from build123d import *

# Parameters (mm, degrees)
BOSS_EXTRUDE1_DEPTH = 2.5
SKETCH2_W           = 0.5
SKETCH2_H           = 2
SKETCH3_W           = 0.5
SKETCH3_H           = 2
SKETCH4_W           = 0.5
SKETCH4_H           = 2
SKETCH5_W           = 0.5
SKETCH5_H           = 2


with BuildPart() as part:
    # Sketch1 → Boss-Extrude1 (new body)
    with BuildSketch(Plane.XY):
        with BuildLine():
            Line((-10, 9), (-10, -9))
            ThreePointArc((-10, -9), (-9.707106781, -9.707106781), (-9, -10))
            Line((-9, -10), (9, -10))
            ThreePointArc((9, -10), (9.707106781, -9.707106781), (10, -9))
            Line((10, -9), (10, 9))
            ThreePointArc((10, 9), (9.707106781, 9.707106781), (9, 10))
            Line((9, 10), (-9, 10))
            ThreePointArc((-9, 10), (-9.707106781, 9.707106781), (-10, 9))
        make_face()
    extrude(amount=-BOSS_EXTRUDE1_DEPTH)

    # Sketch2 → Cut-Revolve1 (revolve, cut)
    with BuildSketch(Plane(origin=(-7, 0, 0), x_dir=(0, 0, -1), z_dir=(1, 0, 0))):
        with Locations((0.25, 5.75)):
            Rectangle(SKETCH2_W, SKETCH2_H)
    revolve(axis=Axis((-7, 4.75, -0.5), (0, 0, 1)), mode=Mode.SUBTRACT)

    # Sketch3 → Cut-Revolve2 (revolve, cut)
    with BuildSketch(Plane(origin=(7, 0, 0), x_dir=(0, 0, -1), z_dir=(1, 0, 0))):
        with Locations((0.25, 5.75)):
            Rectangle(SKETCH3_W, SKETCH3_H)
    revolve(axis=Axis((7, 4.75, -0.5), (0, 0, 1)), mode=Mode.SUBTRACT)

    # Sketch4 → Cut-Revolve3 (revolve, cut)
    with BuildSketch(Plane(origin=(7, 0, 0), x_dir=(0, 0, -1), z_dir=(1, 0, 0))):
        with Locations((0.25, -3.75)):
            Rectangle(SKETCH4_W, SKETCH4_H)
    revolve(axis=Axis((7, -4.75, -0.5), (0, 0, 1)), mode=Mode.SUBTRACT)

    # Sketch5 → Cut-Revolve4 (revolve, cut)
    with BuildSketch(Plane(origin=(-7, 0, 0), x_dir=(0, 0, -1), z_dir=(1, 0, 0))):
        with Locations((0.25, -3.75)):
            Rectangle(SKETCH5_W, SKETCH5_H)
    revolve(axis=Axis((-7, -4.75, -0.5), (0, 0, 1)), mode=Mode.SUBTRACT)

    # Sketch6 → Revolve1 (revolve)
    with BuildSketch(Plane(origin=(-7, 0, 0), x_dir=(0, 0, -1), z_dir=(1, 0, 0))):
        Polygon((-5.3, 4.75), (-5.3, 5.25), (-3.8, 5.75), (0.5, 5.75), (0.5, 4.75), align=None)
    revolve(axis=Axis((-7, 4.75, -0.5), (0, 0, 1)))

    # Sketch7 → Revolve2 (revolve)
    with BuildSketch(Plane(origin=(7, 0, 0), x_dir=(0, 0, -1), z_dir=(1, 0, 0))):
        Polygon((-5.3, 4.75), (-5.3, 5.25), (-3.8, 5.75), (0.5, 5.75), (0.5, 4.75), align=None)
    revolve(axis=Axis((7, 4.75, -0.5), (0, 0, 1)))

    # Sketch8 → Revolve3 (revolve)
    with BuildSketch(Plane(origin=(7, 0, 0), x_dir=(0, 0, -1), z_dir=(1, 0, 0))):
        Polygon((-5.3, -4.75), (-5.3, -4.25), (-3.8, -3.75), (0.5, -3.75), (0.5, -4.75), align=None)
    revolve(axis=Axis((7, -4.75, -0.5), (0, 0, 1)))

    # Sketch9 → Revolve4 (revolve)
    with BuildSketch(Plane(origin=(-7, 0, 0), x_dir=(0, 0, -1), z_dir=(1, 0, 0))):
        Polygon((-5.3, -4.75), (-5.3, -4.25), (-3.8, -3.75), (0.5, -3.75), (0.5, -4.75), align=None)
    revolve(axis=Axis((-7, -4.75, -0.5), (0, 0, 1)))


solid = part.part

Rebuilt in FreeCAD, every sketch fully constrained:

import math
import FreeCAD as App
import Part
import Sketcher
Q = App.Units.Quantity


def add_polygon(sketch, points):
    """Adds a closed chain of lines whose ends are joined by coincident constraints."""
    first, n = sketch.GeometryCount, len(points)
    for a, b in zip(points, points[1:] + points[:1]):
        sketch.addGeometry(Part.LineSegment(App.Vector(*a, 0), App.Vector(*b, 0)), False)
    for i in range(n):
        sketch.addConstraint(Sketcher.Constraint("Coincident", first + i, 2, first + (i + 1) % n, 1))

doc = App.newDocument("Part")
params = doc.addObject("Spreadsheet::Sheet", "Params")
for row, (alias, value) in enumerate([
    ("sketch1_radius", "1 mm"),
    ("sketch1_width", "18 mm"),
    ("pad1_length", "2.5 mm"),
    ("sketch2_width", "2 mm"),
    ("sketch2_height", "0.5 mm"),
    ("groove_angle", "360 deg"),
    ("sketch3_width", "2 mm"),
    ("sketch3_height", "0.5 mm"),
    ("groove2_angle", "360 deg"),
    ("sketch4_width", "2 mm"),
    ("sketch4_height", "0.5 mm"),
    ("groove3_angle", "360 deg"),
    ("sketch5_width", "2 mm"),
    ("sketch5_height", "0.5 mm"),
    ("groove4_angle", "360 deg"),
    ("sketch6_width", "1 mm"),
    ("sketch6_width2", "0.5 mm"),
    ("sketch6_height", "5.8 mm"),
    ("sketch6_height2", "4.3 mm"),
    ("revolution_angle", "360 deg"),
    ("sketch7_width", "1 mm"),
    ("sketch7_width2", "0.5 mm"),
    ("sketch7_height", "5.8 mm"),
    ("sketch7_height2", "4.3 mm"),
    ("revolution2_angle", "360 deg"),
    ("sketch8_width", "1 mm"),
    ("sketch8_width2", "0.5 mm"),
    ("sketch8_height", "5.8 mm"),
    ("sketch8_height2", "4.3 mm"),
    ("revolution3_angle", "360 deg"),
    ("sketch9_width", "1 mm"),
    ("sketch9_width2", "0.5 mm"),
    ("sketch9_height", "5.8 mm"),
    ("sketch9_height2", "4.3 mm"),
    ("revolution4_angle", "360 deg"),
], start=1):
    params.set(f"A{row}", alias)
    params.set(f"B{row}", "=" + value)
    params.setAlias(f"B{row}", alias)

body = doc.addObject("PartDesign::Body", "Body")

sketch1 = doc.addObject("Sketcher::SketchObject", "Sketch")
body.addObject(sketch1)
sketch1.AttachmentSupport = (doc.XY_Plane, [""])
sketch1.MapMode = "FlatFace"
sketch1.addGeometry([
    Part.LineSegment(App.Vector(-10, 9, 0), App.Vector(-10, -9, 0)),
    Part.ArcOfCircle(Part.Circle(App.Vector(-9, -9, 0), App.Vector(0, 0, 1), 1), math.radians(-180), math.radians(-90)),
    Part.LineSegment(App.Vector(-9, -10, 0), App.Vector(9, -10, 0)),
    Part.ArcOfCircle(Part.Circle(App.Vector(9, -9, 0), App.Vector(0, 0, 1), 1), math.radians(-90), math.radians(0)),
    Part.LineSegment(App.Vector(10, -9, 0), App.Vector(10, 9, 0)),
    Part.ArcOfCircle(Part.Circle(App.Vector(9, 9, 0), App.Vector(0, 0, 1), 1), math.radians(0), math.radians(90)),
    Part.LineSegment(App.Vector(9, 10, 0), App.Vector(-9, 10, 0)),
    Part.ArcOfCircle(Part.Circle(App.Vector(-9, 9, 0), App.Vector(0, 0, 1), 1), math.radians(90), math.radians(180)),
], False)
sketch1.addConstraint([
    Sketcher.Constraint("Tangent", 0, 2, 1, 1),
    Sketcher.Constraint("Tangent", 1, 2, 2, 1),
    Sketcher.Constraint("Tangent", 2, 2, 3, 1),
    Sketcher.Constraint("Tangent", 3, 2, 4, 1),
    Sketcher.Constraint("Tangent", 4, 2, 5, 1),
    Sketcher.Constraint("Tangent", 5, 2, 6, 1),
    Sketcher.Constraint("Tangent", 6, 2, 7, 1),
    Sketcher.Constraint("Tangent", 7, 2, 0, 1),
    Sketcher.Constraint("Vertical", 0),
    Sketcher.Constraint("Horizontal", 2),
    Sketcher.Constraint("Vertical", 4),
    Sketcher.Constraint("Horizontal", 6),
    Sketcher.Constraint("Equal", 1, 3),
    Sketcher.Constraint("Equal", 3, 5),
    Sketcher.Constraint("Equal", 5, 7),
    Sketcher.Constraint("Symmetric", 1, 3, 5, 3, -1, 1),
    Sketcher.Constraint("Equal", 6, 0),
    Sketcher.Constraint("Radius", 1, Q("1 mm")),
    Sketcher.Constraint("DistanceX", 2, 1, 2, 2, Q("18 mm")),
])
sketch1.setExpression("Constraints[17]", "Params.sketch1_radius")
sketch1.setExpression("Constraints[18]", "Params.sketch1_width")
pad1 = doc.addObject("PartDesign::Pad", "Pad")
body.addObject(pad1)
pad1.Profile = sketch1
pad1.setExpression("Length", "Params.pad1_length")
pad1.Reversed = True

sketch2 = doc.addObject("Sketcher::SketchObject", "Sketch001")
body.addObject(sketch2)
sketch2.AttachmentSupport = (doc.YZ_Plane, [""])
sketch2.MapMode = "FlatFace"
sketch2.AttachmentOffset = App.Placement(App.Vector(0, 0, -7), App.Rotation())
add_polygon(sketch2, [(6.8, 0), (4.8, 0), (4.8, -0.5), (6.8, -0.5)])
sketch2.addGeometry(Part.LineSegment(App.Vector(4.8, -0.5, 0), App.Vector(4.8, 0, 0)), True)
sketch2.addConstraint([
    Sketcher.Constraint("Horizontal", 0),
    Sketcher.Constraint("Vertical", 1),
    Sketcher.Constraint("Horizontal", 2),
    Sketcher.Constraint("Vertical", 3),
    Sketcher.Constraint("Vertical", 4),
    Sketcher.Constraint("Coincident", 4, 1, 1, 2),
    Sketcher.Constraint("PointOnObject", 0, 2, -1),
    Sketcher.Constraint("PointOnObject", 4, 2, -1),
    Sketcher.Constraint("DistanceX", 0, 2, 0, 1, Q("2 mm")),
    Sketcher.Constraint("DistanceY", 1, 2, 1, 1, Q("0.5 mm")),
    Sketcher.Constraint("DistanceX", -1, 1, 0, 2, Q("4.75 mm")),
])
sketch2.setExpression("Constraints[12]", "Params.sketch2_width")
sketch2.setExpression("Constraints[13]", "Params.sketch2_height")
groove = doc.addObject("PartDesign::Groove", "Groove")
body.addObject(groove)
groove.Profile = sketch2
groove.ReferenceAxis = (sketch2, ["Axis0"])
groove.setExpression("Angle", "Params.groove_angle")

sketch3 = doc.addObject("Sketcher::SketchObject", "Sketch002")
body.addObject(sketch3)
sketch3.AttachmentSupport = (doc.YZ_Plane, [""])
sketch3.MapMode = "FlatFace"
sketch3.AttachmentOffset = App.Placement(App.Vector(0, 0, 7), App.Rotation())
add_polygon(sketch3, [(6.8, 0), (4.8, 0), (4.8, -0.5), (6.8, -0.5)])
sketch3.addGeometry(Part.LineSegment(App.Vector(4.8, -0.5, 0), App.Vector(4.8, 0, 0)), True)
sketch3.addConstraint([
    Sketcher.Constraint("Horizontal", 0),
    Sketcher.Constraint("Vertical", 1),
    Sketcher.Constraint("Horizontal", 2),
    Sketcher.Constraint("Vertical", 3),
    Sketcher.Constraint("Vertical", 4),
    Sketcher.Constraint("Coincident", 4, 1, 1, 2),
    Sketcher.Constraint("PointOnObject", 0, 2, -1),
    Sketcher.Constraint("PointOnObject", 4, 2, -1),
    Sketcher.Constraint("DistanceX", 0, 2, 0, 1, Q("2 mm")),
    Sketcher.Constraint("DistanceY", 1, 2, 1, 1, Q("0.5 mm")),
    Sketcher.Constraint("DistanceX", -1, 1, 0, 2, Q("4.75 mm")),
])
sketch3.setExpression("Constraints[12]", "Params.sketch3_width")
sketch3.setExpression("Constraints[13]", "Params.sketch3_height")
groove2 = doc.addObject("PartDesign::Groove", "Groove001")
body.addObject(groove2)
groove2.Profile = sketch3
groove2.ReferenceAxis = (sketch3, ["Axis0"])
groove2.setExpression("Angle", "Params.groove2_angle")

sketch4 = doc.addObject("Sketcher::SketchObject", "Sketch003")
body.addObject(sketch4)
sketch4.AttachmentSupport = (doc.YZ_Plane, [""])
sketch4.MapMode = "FlatFace"
sketch4.AttachmentOffset = App.Placement(App.Vector(0, 0, 7), App.Rotation())
add_polygon(sketch4, [(-2.8, 0), (-4.8, 0), (-4.8, -0.5), (-2.8, -0.5)])
sketch4.addGeometry(Part.LineSegment(App.Vector(-4.8, -0.5, 0), App.Vector(-4.8, 0, 0)), True)
sketch4.addConstraint([
    Sketcher.Constraint("Horizontal", 0),
    Sketcher.Constraint("Vertical", 1),
    Sketcher.Constraint("Horizontal", 2),
    Sketcher.Constraint("Vertical", 3),
    Sketcher.Constraint("Vertical", 4),
    Sketcher.Constraint("Coincident", 4, 1, 1, 2),
    Sketcher.Constraint("PointOnObject", 0, 2, -1),
    Sketcher.Constraint("PointOnObject", 4, 2, -1),
    Sketcher.Constraint("DistanceX", 0, 2, 0, 1, Q("2 mm")),
    Sketcher.Constraint("DistanceY", 1, 2, 1, 1, Q("0.5 mm")),
    Sketcher.Constraint("DistanceX", 0, 2, -1, 1, Q("4.75 mm")),
])
sketch4.setExpression("Constraints[12]", "Params.sketch4_width")
sketch4.setExpression("Constraints[13]", "Params.sketch4_height")
groove3 = doc.addObject("PartDesign::Groove", "Groove002")
body.addObject(groove3)
groove3.Profile = sketch4
groove3.ReferenceAxis = (sketch4, ["Axis0"])
groove3.setExpression("Angle", "Params.groove3_angle")

sketch5 = doc.addObject("Sketcher::SketchObject", "Sketch004")
body.addObject(sketch5)
sketch5.AttachmentSupport = (doc.YZ_Plane, [""])
sketch5.MapMode = "FlatFace"
sketch5.AttachmentOffset = App.Placement(App.Vector(0, 0, -7), App.Rotation())
add_polygon(sketch5, [(-2.8, 0), (-4.8, 0), (-4.8, -0.5), (-2.8, -0.5)])
sketch5.addGeometry(Part.LineSegment(App.Vector(-4.8, -0.5, 0), App.Vector(-4.8, 0, 0)), True)
sketch5.addConstraint([
    Sketcher.Constraint("Horizontal", 0),
    Sketcher.Constraint("Vertical", 1),
    Sketcher.Constraint("Horizontal", 2),
    Sketcher.Constraint("Vertical", 3),
    Sketcher.Constraint("Vertical", 4),
    Sketcher.Constraint("Coincident", 4, 1, 1, 2),
    Sketcher.Constraint("PointOnObject", 0, 2, -1),
    Sketcher.Constraint("PointOnObject", 4, 2, -1),
    Sketcher.Constraint("DistanceX", 0, 2, 0, 1, Q("2 mm")),
    Sketcher.Constraint("DistanceY", 1, 2, 1, 1, Q("0.5 mm")),
    Sketcher.Constraint("DistanceX", 0, 2, -1, 1, Q("4.75 mm")),
])
sketch5.setExpression("Constraints[12]", "Params.sketch5_width")
sketch5.setExpression("Constraints[13]", "Params.sketch5_height")
groove4 = doc.addObject("PartDesign::Groove", "Groove003")
body.addObject(groove4)
groove4.Profile = sketch5
groove4.ReferenceAxis = (sketch5, ["Axis0"])
groove4.setExpression("Angle", "Params.groove4_angle")

sketch6 = doc.addObject("Sketcher::SketchObject", "Sketch005")
body.addObject(sketch6)
sketch6.AttachmentSupport = (doc.YZ_Plane, [""])
sketch6.MapMode = "FlatFace"
sketch6.AttachmentOffset = App.Placement(App.Vector(0, 0, -7), App.Rotation())
add_polygon(sketch6, [(5.2, 5.3), (4.8, 5.3), (4.8, -0.5), (5.8, -0.5), (5.8, 3.8)])
sketch6.addGeometry(Part.LineSegment(App.Vector(4.8, -0.5, 0), App.Vector(4.8, 5.3, 0)), True)
sketch6.addConstraint([
    Sketcher.Constraint("Horizontal", 0),
    Sketcher.Constraint("Vertical", 1),
    Sketcher.Constraint("Horizontal", 2),
    Sketcher.Constraint("Vertical", 3),
    Sketcher.Constraint("Vertical", 5),
    Sketcher.Constraint("Coincident", 5, 1, 1, 2),
    Sketcher.Constraint("Horizontal", 4, 2, 5, 2),
    Sketcher.Constraint("DistanceX", 2, 1, 2, 2, Q("1 mm")),
    Sketcher.Constraint("DistanceX", 0, 2, 0, 1, Q("0.5 mm")),
    Sketcher.Constraint("DistanceY", 1, 2, 1, 1, Q("5.8 mm")),
    Sketcher.Constraint("DistanceY", 3, 1, 3, 2, Q("4.3 mm")),
    Sketcher.Constraint("DistanceY", -1, 1, 0, 2, Q("5.3 mm")),
    Sketcher.Constraint("DistanceX", -1, 1, 0, 2, Q("4.75 mm")),
])
sketch6.setExpression("Constraints[12]", "Params.sketch6_width")
sketch6.setExpression("Constraints[13]", "Params.sketch6_width2")
sketch6.setExpression("Constraints[14]", "Params.sketch6_height")
sketch6.setExpression("Constraints[15]", "Params.sketch6_height2")
revolution = doc.addObject("PartDesign::Revolution", "Revolution")
body.addObject(revolution)
revolution.Profile = sketch6
revolution.ReferenceAxis = (sketch6, ["Axis0"])
revolution.setExpression("Angle", "Params.revolution_angle")

sketch7 = doc.addObject("Sketcher::SketchObject", "Sketch006")
body.addObject(sketch7)
sketch7.AttachmentSupport = (doc.YZ_Plane, [""])
sketch7.MapMode = "FlatFace"
sketch7.AttachmentOffset = App.Placement(App.Vector(0, 0, 7), App.Rotation())
add_polygon(sketch7, [(5.2, 5.3), (4.8, 5.3), (4.8, -0.5), (5.8, -0.5), (5.8, 3.8)])
sketch7.addGeometry(Part.LineSegment(App.Vector(4.8, -0.5, 0), App.Vector(4.8, 5.3, 0)), True)
sketch7.addConstraint([
    Sketcher.Constraint("Horizontal", 0),
    Sketcher.Constraint("Vertical", 1),
    Sketcher.Constraint("Horizontal", 2),
    Sketcher.Constraint("Vertical", 3),
    Sketcher.Constraint("Vertical", 5),
    Sketcher.Constraint("Coincident", 5, 1, 1, 2),
    Sketcher.Constraint("Horizontal", 4, 2, 5, 2),
    Sketcher.Constraint("DistanceX", 2, 1, 2, 2, Q("1 mm")),
    Sketcher.Constraint("DistanceX", 0, 2, 0, 1, Q("0.5 mm")),
    Sketcher.Constraint("DistanceY", 1, 2, 1, 1, Q("5.8 mm")),
    Sketcher.Constraint("DistanceY", 3, 1, 3, 2, Q("4.3 mm")),
    Sketcher.Constraint("DistanceY", -1, 1, 0, 2, Q("5.3 mm")),
    Sketcher.Constraint("DistanceX", -1, 1, 0, 2, Q("4.75 mm")),
])
sketch7.setExpression("Constraints[12]", "Params.sketch7_width")
sketch7.setExpression("Constraints[13]", "Params.sketch7_width2")
sketch7.setExpression("Constraints[14]", "Params.sketch7_height")
sketch7.setExpression("Constraints[15]", "Params.sketch7_height2")
revolution2 = doc.addObject("PartDesign::Revolution", "Revolution001")
body.addObject(revolution2)
revolution2.Profile = sketch7
revolution2.ReferenceAxis = (sketch7, ["Axis0"])
revolution2.setExpression("Angle", "Params.revolution2_angle")

sketch8 = doc.addObject("Sketcher::SketchObject", "Sketch007")
body.addObject(sketch8)
sketch8.AttachmentSupport = (doc.YZ_Plane, [""])
sketch8.MapMode = "FlatFace"
sketch8.AttachmentOffset = App.Placement(App.Vector(0, 0, 7), App.Rotation())
add_polygon(sketch8, [(-4.2, 5.3), (-4.8, 5.3), (-4.8, -0.5), (-3.8, -0.5), (-3.8, 3.8)])
sketch8.addGeometry(Part.LineSegment(App.Vector(-4.8, -0.5, 0), App.Vector(-4.8, 5.3, 0)), True)
sketch8.addConstraint([
    Sketcher.Constraint("Horizontal", 0),
    Sketcher.Constraint("Vertical", 1),
    Sketcher.Constraint("Horizontal", 2),
    Sketcher.Constraint("Vertical", 3),
    Sketcher.Constraint("Vertical", 5),
    Sketcher.Constraint("Coincident", 5, 1, 1, 2),
    Sketcher.Constraint("Horizontal", 4, 2, 5, 2),
    Sketcher.Constraint("DistanceX", 2, 1, 2, 2, Q("1 mm")),
    Sketcher.Constraint("DistanceX", 0, 2, 0, 1, Q("0.5 mm")),
    Sketcher.Constraint("DistanceY", 1, 2, 1, 1, Q("5.8 mm")),
    Sketcher.Constraint("DistanceY", 3, 1, 3, 2, Q("4.3 mm")),
    Sketcher.Constraint("DistanceY", -1, 1, 0, 2, Q("5.3 mm")),
    Sketcher.Constraint("DistanceX", 0, 2, -1, 1, Q("4.75 mm")),
])
sketch8.setExpression("Constraints[12]", "Params.sketch8_width")
sketch8.setExpression("Constraints[13]", "Params.sketch8_width2")
sketch8.setExpression("Constraints[14]", "Params.sketch8_height")
sketch8.setExpression("Constraints[15]", "Params.sketch8_height2")
revolution3 = doc.addObject("PartDesign::Revolution", "Revolution002")
body.addObject(revolution3)
revolution3.Profile = sketch8
revolution3.ReferenceAxis = (sketch8, ["Axis0"])
revolution3.setExpression("Angle", "Params.revolution3_angle")

sketch9 = doc.addObject("Sketcher::SketchObject", "Sketch008")
body.addObject(sketch9)
sketch9.AttachmentSupport = (doc.YZ_Plane, [""])
sketch9.MapMode = "FlatFace"
sketch9.AttachmentOffset = App.Placement(App.Vector(0, 0, -7), App.Rotation())
add_polygon(sketch9, [(-4.2, 5.3), (-4.8, 5.3), (-4.8, -0.5), (-3.8, -0.5), (-3.8, 3.8)])
sketch9.addGeometry(Part.LineSegment(App.Vector(-4.8, -0.5, 0), App.Vector(-4.8, 5.3, 0)), True)
sketch9.addConstraint([
    Sketcher.Constraint("Horizontal", 0),
    Sketcher.Constraint("Vertical", 1),
    Sketcher.Constraint("Horizontal", 2),
    Sketcher.Constraint("Vertical", 3),
    Sketcher.Constraint("Vertical", 5),
    Sketcher.Constraint("Coincident", 5, 1, 1, 2),
    Sketcher.Constraint("Horizontal", 4, 2, 5, 2),
    Sketcher.Constraint("DistanceX", 2, 1, 2, 2, Q("1 mm")),
    Sketcher.Constraint("DistanceX", 0, 2, 0, 1, Q("0.5 mm")),
    Sketcher.Constraint("DistanceY", 1, 2, 1, 1, Q("5.8 mm")),
    Sketcher.Constraint("DistanceY", 3, 1, 3, 2, Q("4.3 mm")),
    Sketcher.Constraint("DistanceY", -1, 1, 0, 2, Q("5.3 mm")),
    Sketcher.Constraint("DistanceX", 0, 2, -1, 1, Q("4.75 mm")),
])
sketch9.setExpression("Constraints[12]", "Params.sketch9_width")
sketch9.setExpression("Constraints[13]", "Params.sketch9_width2")
sketch9.setExpression("Constraints[14]", "Params.sketch9_height")
sketch9.setExpression("Constraints[15]", "Params.sketch9_height2")
revolution4 = doc.addObject("PartDesign::Revolution", "Revolution003")
body.addObject(revolution4)
revolution4.Profile = sketch9
revolution4.ReferenceAxis = (sketch9, ["Axis0"])
revolution4.setExpression("Angle", "Params.revolution4_angle")

doc.recompute()
